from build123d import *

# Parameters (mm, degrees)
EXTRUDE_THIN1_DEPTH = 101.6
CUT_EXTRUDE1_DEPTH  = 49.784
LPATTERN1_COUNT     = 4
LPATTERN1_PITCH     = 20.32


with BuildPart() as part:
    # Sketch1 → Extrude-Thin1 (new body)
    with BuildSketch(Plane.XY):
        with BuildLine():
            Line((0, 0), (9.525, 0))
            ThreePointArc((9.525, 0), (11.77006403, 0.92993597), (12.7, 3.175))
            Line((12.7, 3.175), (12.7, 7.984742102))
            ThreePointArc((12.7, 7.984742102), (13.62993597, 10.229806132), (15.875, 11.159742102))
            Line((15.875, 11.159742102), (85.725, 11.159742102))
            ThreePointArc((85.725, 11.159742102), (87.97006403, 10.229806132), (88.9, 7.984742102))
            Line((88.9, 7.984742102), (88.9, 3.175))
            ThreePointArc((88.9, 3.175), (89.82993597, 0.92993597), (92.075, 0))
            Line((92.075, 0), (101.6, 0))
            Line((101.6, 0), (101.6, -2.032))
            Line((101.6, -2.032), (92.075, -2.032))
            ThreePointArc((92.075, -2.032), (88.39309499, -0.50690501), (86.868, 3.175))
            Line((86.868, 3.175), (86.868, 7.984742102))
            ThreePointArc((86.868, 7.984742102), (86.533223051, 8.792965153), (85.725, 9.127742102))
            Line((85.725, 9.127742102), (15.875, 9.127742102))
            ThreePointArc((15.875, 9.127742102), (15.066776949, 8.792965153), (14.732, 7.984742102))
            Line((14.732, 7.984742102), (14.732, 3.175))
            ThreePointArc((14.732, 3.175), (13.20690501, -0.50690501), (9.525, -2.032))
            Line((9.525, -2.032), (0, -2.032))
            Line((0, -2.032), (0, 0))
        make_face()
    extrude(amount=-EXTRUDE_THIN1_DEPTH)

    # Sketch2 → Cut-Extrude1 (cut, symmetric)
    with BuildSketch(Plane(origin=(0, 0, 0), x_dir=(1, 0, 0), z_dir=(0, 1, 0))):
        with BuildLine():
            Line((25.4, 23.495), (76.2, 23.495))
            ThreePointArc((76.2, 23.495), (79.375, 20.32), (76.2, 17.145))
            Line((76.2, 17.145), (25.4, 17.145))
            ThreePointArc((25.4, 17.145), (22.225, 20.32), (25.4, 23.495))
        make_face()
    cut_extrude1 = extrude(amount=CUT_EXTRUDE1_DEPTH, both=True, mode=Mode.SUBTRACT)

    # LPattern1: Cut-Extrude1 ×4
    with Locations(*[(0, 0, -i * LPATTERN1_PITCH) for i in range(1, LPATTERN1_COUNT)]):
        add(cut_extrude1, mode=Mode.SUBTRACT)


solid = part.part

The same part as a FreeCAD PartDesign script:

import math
import FreeCAD as App
import Part
import Sketcher
from FreeCAD import Vector
Q = App.Units.Quantity

doc = App.newDocument("Part")
body = doc.addObject("PartDesign::Body", "Body")

sketch1 = body.newObject("Sketcher::SketchObject", "Sketch")
sketch1.AttachmentSupport = (doc.getObject("XY_Plane"), [""])
sketch1.MapMode = "FlatFace"
sketch1.addGeometry([
    Part.LineSegment(Vector(9.525, 0, 0), Vector(0, 0, 0)),
    Part.LineSegment(Vector(0, 0, 0), Vector(0, -2.032, 0)),
    Part.LineSegment(Vector(0, -2.032, 0), Vector(9.525, -2.032, 0)),
    Part.ArcOfCircle(Part.Circle(Vector(9.525, 3.175, 0), Vector(0, 0, 1), 5.207), math.radians(-90), math.radians(0)),
    Part.LineSegment(Vector(14.732, 3.175, 0), Vector(14.732, 7.984742, 0)),
    Part.ArcOfCircle(Part.Circle(Vector(15.875, 7.984742, 0), Vector(0, 0, 1), 1.143), math.radians(90), math.radians(180)),
    Part.LineSegment(Vector(15.875, 9.127742, 0), Vector(85.725, 9.127742, 0)),
    Part.ArcOfCircle(Part.Circle(Vector(85.725, 7.984742, 0), Vector(0, 0, 1), 1.143), math.radians(0), math.radians(90)),
    Part.LineSegment(Vector(86.868, 7.984742, 0), Vector(86.868, 3.175, 0)),
    Part.ArcOfCircle(Part.Circle(Vector(92.075, 3.175, 0), Vector(0, 0, 1), 5.207), math.radians(180), math.radians(270)),
    Part.LineSegment(Vector(92.075, -2.032, 0), Vector(101.6, -2.032, 0)),
    Part.LineSegment(Vector(101.6, -2.032, 0), Vector(101.6, 0, 0)),
    Part.LineSegment(Vector(101.6, 0, 0), Vector(92.075, 0, 0)),
    Part.ArcOfCircle(Part.Circle(Vector(92.075, 3.175, 0), Vector(0, 0, 1), 3.175), math.radians(-180), math.radians(-90)),
    Part.LineSegment(Vector(88.9, 3.175, 0), Vector(88.9, 7.984742, 0)),
    Part.ArcOfCircle(Part.Circle(Vector(85.725, 7.984742, 0), Vector(0, 0, 1), 3.175), math.radians(0), math.radians(90)),
    Part.LineSegment(Vector(85.725, 11.159742, 0), Vector(15.875, 11.159742, 0)),
    Part.ArcOfCircle(Part.Circle(Vector(15.875, 7.984742, 0), Vector(0, 0, 1), 3.175), math.radians(90), math.radians(180)),
    Part.LineSegment(Vector(12.7, 7.984742, 0), Vector(12.7, 3.175, 0)),
    Part.ArcOfCircle(Part.Circle(Vector(9.525, 3.175, 0), Vector(0, 0, 1), 3.175), math.radians(-90), math.radians(0)),
], False)
sketch1.addConstraint([
    Sketcher.Constraint("Coincident", 0, 2, 1, 1),
    Sketcher.Constraint("Coincident", 1, 2, 2, 1),
    Sketcher.Constraint("Tangent", 2, 2, 3, 1),
    Sketcher.Constraint("Tangent", 3, 2, 4, 1),
    Sketcher.Constraint("Tangent", 4, 2, 5, 2),
    Sketcher.Constraint("Tangent", 5, 1, 6, 1),
    Sketcher.Constraint("Tangent", 6, 2, 7, 2),
    Sketcher.Constraint("Tangent", 7, 1, 8, 1),
    Sketcher.Constraint("Tangent", 8, 2, 9, 1),
    Sketcher.Constraint("Tangent", 9, 2, 10, 1),
    Sketcher.Constraint("Coincident", 10, 2, 11, 1),
    Sketcher.Constraint("Coincident", 11, 2, 12, 1),
    Sketcher.Constraint("Tangent", 12, 2, 13, 2),
    Sketcher.Constraint("Tangent", 13, 1, 14, 1),
    Sketcher.Constraint("Tangent", 14, 2, 15, 1),
    Sketcher.Constraint("Tangent", 15, 2, 16, 1),
    Sketcher.Constraint("Tangent", 16, 2, 17, 1),
    Sketcher.Constraint("Tangent", 17, 2, 18, 1),
    Sketcher.Constraint("Tangent", 18, 2, 19, 2),
    Sketcher.Constraint("Tangent", 19, 1, 0, 1),
    Sketcher.Constraint("Horizontal", 0),
    Sketcher.Constraint("Vertical", 1),
    Sketcher.Constraint("Horizontal", 2),
    Sketcher.Constraint("Vertical", 4),
    Sketcher.Constraint("Horizontal", 6),
    Sketcher.Constraint("Vertical", 8),
    Sketcher.Constraint("Horizontal", 10),
    Sketcher.Constraint("Vertical", 11),
    Sketcher.Constraint("Horizontal", 12),
    Sketcher.Constraint("Vertical", 14),
    Sketcher.Constraint("Horizontal", 16),
    Sketcher.Constraint("Vertical", 18),
    Sketcher.Constraint("Coincident", 0, 2, -1, 1),
    Sketcher.Constraint("Coincident", 13, 3, 9, 3),
    Sketcher.Constraint("Coincident", 15, 3, 7, 3),
    Sketcher.Constraint("Coincident", 17, 3, 5, 3),
    Sketcher.Constraint("Coincident", 19, 3, 3, 3),
    Sketcher.Constraint("Equal", 5, 7),
    Sketcher.Constraint("Equal", 3, 9),
    Sketcher.Constraint("Equal", 13, 15),
    Sketcher.Constraint("PointOnObject", 11, 2, -1),
    Sketcher.Constraint("Equal", 2, 10),
    Sketcher.Constraint("DistanceX", -1, 1, 10, 2, Q("4 in")),
    Sketcher.Constraint("Radius", 3, Q("0.205 in")),
    Sketcher.Constraint("Radius", 5, Q("0.045 in")),
    Sketcher.Constraint("DistanceX", 3, 3, 7, 3, Q("3 in")),
    Sketcher.Constraint("DistanceY", 4, 1, 4, 2, Q("4.809742 mm")),
])
pad1 = body.newObject("PartDesign::Pad", "Pad")
pad1.Profile = sketch1
pad1.Length = Q("4 in")
pad1.Reversed = True

sketch2 = body.newObject("Sketcher::SketchObject", "Sketch001")
sketch2.AttachmentSupport = (doc.getObject("XZ_Plane"), [""])
sketch2.MapMode = "FlatFace"
sketch2.addGeometry([
    Part.LineSegment(Vector(76.2, -23.495, 0), Vector(25.4, -23.495, 0)),
    Part.ArcOfCircle(Part.Circle(Vector(25.4, -20.32, 0), Vector(0, 0, 1), 3.175), math.radians(90), math.radians(270)),
    Part.LineSegment(Vector(25.4, -17.145, 0), Vector(76.2, -17.145, 0)),
    Part.ArcOfCircle(Part.Circle(Vector(76.2, -20.32, 0), Vector(0, 0, 1), 3.175), math.radians(-90), math.radians(90)),
], False)
sketch2.addConstraint([
    Sketcher.Constraint("Tangent", 0, 2, 1, 2),
    Sketcher.Constraint("Tangent", 1, 1, 2, 1),
    Sketcher.Constraint("Tangent", 2, 2, 3, 2),
    Sketcher.Constraint("Tangent", 3, 1, 0, 1),
    Sketcher.Constraint("Horizontal", 0),
    Sketcher.Constraint("Horizontal", 2),
    Sketcher.Constraint("DistanceX", 0, 2, 0, 1, Q("2 in")),
    Sketcher.Constraint("DistanceX", -1, 1, 1, 3, Q("1 in")),
    Sketcher.Constraint("Radius", 1, Q("0.125 in")),
    Sketcher.Constraint("DistanceY", 1, 3, -1, 1, Q("0.8 in")),
])
pocket1 = body.newObject("PartDesign::Pocket", "Pocket")
pocket1.Profile = sketch2
pocket1.Length = Q("3.92 in")
pocket1.Midplane = True
doc.recompute()

linearpattern = body.newObject("PartDesign::LinearPattern", "LinearPattern")
linearpattern.Originals = [pocket1]
linearpattern.Direction = (doc.getObject("Z_Axis"), [""])
linearpattern.Mode = "offset"
linearpattern.Offset = Q("0.8 in")
linearpattern.Occurrences = 4
linearpattern.Reversed = True
body.Tip = linearpattern

doc.recompute()
